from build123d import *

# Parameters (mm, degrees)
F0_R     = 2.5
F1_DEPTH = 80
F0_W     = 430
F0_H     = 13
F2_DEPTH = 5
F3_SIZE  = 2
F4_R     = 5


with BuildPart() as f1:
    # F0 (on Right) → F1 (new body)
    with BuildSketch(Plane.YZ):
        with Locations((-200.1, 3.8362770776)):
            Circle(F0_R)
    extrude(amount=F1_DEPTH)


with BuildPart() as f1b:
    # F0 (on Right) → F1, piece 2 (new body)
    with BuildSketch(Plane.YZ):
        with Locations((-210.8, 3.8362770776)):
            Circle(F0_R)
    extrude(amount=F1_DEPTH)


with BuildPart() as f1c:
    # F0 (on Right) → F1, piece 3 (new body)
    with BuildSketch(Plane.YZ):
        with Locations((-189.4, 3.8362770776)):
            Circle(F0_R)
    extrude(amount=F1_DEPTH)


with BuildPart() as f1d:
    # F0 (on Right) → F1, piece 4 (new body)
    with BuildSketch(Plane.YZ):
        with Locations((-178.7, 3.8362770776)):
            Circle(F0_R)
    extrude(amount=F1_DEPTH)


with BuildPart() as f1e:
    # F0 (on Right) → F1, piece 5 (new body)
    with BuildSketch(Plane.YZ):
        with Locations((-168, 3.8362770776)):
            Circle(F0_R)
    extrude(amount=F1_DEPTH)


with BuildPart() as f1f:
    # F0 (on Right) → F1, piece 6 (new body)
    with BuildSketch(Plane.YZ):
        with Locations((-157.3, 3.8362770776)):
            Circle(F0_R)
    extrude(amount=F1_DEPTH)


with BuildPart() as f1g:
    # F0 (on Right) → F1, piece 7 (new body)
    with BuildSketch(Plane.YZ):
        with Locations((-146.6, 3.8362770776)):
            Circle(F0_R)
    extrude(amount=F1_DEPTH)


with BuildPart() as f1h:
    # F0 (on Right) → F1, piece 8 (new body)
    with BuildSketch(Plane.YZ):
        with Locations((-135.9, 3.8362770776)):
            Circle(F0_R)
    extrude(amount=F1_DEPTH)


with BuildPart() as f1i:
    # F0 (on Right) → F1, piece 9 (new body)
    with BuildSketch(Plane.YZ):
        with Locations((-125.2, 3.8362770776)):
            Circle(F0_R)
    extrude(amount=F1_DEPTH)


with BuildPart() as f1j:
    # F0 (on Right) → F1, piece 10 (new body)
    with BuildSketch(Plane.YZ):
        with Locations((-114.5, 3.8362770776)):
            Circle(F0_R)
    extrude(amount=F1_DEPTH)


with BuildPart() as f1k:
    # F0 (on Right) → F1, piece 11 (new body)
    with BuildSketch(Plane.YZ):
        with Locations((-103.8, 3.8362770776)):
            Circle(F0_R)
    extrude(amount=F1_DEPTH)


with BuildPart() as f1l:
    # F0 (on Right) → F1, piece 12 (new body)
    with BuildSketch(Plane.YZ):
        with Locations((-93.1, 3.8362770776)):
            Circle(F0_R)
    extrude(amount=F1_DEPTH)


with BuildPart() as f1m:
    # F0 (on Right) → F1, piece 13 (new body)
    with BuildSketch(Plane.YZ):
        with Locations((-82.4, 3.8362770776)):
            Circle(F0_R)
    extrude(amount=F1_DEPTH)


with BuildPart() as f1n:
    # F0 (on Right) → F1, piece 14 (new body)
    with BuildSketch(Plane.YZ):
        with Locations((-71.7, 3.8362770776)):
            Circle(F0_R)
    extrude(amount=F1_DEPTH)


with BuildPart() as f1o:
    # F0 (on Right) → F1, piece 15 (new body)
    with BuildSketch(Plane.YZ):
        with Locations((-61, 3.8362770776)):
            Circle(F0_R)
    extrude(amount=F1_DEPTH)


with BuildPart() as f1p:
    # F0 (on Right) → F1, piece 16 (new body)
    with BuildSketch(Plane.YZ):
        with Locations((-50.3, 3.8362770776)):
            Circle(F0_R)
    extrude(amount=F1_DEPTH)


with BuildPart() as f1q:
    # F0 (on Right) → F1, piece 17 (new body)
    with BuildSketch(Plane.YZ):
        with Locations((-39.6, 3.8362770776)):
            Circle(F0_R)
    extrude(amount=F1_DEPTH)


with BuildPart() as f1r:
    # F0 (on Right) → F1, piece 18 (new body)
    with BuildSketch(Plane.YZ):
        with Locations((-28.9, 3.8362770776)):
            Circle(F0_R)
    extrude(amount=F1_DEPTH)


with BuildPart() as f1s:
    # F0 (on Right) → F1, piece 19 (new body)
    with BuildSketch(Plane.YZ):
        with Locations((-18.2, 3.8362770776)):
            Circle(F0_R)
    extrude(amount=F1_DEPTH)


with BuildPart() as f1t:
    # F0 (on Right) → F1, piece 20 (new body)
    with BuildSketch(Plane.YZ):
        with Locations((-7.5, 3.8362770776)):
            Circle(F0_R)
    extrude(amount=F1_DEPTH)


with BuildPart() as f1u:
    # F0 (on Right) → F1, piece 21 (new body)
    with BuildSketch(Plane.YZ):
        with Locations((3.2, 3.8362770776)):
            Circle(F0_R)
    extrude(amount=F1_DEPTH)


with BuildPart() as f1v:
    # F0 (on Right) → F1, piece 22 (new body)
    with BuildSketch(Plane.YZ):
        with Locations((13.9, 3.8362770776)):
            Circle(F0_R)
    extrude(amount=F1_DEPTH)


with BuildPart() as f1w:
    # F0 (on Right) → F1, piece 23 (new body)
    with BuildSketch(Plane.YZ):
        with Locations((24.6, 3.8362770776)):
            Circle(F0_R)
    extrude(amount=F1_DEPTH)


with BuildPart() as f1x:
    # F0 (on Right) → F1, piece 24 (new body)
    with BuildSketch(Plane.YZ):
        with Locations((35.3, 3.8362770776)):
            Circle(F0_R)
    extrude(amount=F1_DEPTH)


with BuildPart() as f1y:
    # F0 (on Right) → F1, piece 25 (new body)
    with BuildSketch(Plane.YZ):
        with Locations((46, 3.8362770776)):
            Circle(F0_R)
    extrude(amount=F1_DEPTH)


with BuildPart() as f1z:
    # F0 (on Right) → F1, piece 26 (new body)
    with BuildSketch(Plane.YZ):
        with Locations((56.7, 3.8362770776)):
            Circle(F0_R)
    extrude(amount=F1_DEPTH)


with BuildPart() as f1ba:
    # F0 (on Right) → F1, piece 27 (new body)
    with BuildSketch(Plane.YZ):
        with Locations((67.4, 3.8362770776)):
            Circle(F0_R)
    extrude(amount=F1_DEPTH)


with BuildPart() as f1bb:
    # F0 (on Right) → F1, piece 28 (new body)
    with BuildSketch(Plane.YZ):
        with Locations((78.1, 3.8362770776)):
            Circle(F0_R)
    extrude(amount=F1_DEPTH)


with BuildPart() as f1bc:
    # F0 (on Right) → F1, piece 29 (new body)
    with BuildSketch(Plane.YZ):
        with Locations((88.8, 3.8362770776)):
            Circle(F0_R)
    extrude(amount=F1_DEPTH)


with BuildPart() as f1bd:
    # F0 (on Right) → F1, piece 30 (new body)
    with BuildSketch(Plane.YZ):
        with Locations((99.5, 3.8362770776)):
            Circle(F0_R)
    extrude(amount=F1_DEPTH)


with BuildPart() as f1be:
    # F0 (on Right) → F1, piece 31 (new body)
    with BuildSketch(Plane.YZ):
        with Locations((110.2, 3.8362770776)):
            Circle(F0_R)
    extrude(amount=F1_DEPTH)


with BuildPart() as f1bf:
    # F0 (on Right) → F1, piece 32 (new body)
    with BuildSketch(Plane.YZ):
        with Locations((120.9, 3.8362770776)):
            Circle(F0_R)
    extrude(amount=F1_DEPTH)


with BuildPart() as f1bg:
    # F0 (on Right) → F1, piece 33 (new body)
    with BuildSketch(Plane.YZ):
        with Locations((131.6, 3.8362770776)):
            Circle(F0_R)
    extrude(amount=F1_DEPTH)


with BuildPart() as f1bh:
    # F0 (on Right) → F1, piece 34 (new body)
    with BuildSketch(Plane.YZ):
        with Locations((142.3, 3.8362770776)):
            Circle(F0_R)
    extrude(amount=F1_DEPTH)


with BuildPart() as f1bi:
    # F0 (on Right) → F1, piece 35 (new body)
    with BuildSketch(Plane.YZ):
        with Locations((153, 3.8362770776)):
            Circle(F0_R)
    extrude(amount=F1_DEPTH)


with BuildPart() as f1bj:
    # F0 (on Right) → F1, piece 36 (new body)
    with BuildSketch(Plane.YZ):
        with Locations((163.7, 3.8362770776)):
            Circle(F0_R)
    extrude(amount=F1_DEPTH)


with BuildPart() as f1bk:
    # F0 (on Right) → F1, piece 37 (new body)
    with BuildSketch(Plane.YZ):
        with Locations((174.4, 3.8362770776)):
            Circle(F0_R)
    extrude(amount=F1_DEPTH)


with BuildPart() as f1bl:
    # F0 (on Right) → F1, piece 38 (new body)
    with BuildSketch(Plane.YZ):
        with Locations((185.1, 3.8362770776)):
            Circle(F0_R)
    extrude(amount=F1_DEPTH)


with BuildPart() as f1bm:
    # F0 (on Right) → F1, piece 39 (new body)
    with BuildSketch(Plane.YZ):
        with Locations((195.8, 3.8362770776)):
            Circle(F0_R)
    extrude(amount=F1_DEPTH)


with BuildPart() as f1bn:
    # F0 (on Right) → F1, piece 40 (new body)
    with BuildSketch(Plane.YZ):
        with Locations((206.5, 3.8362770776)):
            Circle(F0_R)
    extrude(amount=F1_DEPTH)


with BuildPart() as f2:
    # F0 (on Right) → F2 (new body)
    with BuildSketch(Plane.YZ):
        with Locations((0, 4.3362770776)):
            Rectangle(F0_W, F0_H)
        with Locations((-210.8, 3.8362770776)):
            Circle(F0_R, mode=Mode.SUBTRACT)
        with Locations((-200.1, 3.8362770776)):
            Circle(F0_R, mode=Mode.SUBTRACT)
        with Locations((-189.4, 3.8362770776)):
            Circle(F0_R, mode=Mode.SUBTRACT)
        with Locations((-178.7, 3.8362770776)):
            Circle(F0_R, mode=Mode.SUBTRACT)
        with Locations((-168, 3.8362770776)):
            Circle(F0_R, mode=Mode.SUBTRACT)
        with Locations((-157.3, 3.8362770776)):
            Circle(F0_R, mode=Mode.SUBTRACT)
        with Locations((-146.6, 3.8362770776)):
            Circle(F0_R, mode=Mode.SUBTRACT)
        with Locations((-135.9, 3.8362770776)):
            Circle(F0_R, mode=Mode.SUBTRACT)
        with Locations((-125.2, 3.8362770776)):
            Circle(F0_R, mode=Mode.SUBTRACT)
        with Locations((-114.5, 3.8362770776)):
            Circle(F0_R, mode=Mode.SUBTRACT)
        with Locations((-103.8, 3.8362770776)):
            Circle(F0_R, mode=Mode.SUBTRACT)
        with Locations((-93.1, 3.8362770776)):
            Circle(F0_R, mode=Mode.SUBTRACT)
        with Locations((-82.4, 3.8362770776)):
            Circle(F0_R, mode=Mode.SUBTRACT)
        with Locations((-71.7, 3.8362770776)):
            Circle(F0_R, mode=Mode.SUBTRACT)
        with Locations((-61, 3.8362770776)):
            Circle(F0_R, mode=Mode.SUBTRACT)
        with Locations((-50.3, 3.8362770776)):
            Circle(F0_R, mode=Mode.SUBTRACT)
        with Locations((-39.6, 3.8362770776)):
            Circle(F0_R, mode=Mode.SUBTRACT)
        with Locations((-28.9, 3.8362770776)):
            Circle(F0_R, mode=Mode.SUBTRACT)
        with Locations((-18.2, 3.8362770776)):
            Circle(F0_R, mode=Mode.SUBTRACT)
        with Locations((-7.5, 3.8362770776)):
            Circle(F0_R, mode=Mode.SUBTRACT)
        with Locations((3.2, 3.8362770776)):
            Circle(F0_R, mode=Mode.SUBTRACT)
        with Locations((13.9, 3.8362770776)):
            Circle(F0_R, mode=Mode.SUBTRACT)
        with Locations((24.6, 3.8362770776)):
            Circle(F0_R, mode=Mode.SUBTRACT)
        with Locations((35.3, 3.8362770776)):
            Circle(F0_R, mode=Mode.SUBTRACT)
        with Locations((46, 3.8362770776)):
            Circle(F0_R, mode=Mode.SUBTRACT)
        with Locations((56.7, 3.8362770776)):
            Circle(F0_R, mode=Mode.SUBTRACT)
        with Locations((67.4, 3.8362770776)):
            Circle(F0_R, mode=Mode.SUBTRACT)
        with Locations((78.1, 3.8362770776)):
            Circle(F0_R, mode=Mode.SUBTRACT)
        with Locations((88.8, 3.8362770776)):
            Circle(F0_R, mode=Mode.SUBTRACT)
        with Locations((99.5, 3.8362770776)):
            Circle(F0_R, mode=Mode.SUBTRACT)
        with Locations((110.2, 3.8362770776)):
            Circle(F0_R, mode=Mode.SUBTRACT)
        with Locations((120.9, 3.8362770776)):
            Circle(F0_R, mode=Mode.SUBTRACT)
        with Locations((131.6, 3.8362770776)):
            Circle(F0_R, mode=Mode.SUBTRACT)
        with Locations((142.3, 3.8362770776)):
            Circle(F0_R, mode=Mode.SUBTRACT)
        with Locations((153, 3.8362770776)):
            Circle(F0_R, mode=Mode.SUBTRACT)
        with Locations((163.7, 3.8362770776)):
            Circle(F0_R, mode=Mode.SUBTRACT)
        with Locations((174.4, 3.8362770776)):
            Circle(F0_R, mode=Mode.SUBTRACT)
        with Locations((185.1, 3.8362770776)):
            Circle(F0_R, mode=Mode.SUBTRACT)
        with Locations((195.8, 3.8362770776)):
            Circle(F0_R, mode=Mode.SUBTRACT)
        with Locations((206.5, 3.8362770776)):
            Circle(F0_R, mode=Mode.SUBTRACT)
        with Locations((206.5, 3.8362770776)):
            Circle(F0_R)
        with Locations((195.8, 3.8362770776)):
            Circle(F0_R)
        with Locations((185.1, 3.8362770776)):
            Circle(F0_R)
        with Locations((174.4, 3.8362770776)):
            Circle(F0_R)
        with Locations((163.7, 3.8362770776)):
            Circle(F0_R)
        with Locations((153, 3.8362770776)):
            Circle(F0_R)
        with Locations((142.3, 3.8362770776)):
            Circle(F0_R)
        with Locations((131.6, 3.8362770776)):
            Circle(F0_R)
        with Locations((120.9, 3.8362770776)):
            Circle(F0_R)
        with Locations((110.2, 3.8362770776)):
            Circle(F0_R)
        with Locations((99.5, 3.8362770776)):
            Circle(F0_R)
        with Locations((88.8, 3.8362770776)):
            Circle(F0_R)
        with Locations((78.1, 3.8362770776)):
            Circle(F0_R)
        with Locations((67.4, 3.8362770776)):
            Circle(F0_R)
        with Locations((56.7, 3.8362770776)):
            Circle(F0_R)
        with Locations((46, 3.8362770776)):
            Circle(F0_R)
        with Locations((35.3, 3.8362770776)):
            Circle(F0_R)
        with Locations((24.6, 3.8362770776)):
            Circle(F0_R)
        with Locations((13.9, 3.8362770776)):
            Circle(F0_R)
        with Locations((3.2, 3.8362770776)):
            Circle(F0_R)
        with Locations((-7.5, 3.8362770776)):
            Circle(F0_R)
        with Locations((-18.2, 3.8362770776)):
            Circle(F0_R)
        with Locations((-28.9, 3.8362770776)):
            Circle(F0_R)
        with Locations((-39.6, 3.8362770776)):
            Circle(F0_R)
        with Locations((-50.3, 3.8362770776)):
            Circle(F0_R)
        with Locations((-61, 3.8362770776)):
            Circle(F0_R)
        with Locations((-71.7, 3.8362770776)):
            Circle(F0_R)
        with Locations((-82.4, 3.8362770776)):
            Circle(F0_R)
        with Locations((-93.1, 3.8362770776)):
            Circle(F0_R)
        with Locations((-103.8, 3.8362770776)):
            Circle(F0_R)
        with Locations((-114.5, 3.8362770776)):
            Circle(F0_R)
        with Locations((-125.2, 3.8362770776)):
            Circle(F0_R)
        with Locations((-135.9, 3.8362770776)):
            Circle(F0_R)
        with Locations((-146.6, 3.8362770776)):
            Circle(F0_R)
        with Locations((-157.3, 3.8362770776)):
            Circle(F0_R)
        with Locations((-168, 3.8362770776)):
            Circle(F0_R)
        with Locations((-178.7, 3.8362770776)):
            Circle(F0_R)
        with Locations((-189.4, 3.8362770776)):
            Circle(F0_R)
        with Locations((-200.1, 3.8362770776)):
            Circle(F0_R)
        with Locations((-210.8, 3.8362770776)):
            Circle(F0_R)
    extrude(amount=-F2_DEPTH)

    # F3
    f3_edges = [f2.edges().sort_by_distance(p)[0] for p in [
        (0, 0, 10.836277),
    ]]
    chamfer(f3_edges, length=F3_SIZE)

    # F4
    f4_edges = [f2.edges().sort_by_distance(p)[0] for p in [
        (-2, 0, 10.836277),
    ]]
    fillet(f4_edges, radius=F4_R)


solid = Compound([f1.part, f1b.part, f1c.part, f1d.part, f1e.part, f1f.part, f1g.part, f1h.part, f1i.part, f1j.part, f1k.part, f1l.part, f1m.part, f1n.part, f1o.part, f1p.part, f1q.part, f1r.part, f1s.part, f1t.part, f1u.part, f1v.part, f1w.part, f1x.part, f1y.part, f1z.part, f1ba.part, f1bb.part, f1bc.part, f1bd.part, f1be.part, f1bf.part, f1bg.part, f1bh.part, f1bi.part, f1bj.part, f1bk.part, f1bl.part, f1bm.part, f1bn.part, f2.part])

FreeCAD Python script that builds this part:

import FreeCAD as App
import Part
import Sketcher

V = App.Vector


def edges_at(feature, points):
    """Names of the edges that pass closest to the given points."""
    edges = feature.Shape.Edges
    near = lambda p: min(range(len(edges)), key=lambda i: edges[i].distToShape(Part.Vertex(*p))[0])
    return sorted({f"Edge{near(p) + 1}" for p in points})

doc = App.newDocument("Part")
body = doc.addObject("PartDesign::Body", "Body")

sketch1 = doc.addObject("Sketcher::SketchObject", "Sketch")
body.addObject(sketch1)
sketch1.AttachmentSupport = (doc.YZ_Plane, [""])
sketch1.MapMode = "FlatFace"
sketch1.addGeometry(Part.Circle(V(-200.1, 3.836277, 0), V(0, 0, 1), 2.5), False)
sketch1.addConstraint(Sketcher.Constraint("Diameter", 0, 5.0))
sketch1.addConstraint(Sketcher.Constraint("DistanceX", 0, 3, -1, 1, 200.1))
sketch1.addConstraint(Sketcher.Constraint("DistanceY", -1, 1, 0, 3, 3.836277))
pad1 = doc.addObject("PartDesign::Pad", "Pad")
body.addObject(pad1)
pad1.Profile = sketch1
pad1.Length = 80
body2 = doc.addObject("PartDesign::Body", "Body001")

sketch2 = doc.addObject("Sketcher::SketchObject", "Sketch001")
body2.addObject(sketch2)
sketch2.AttachmentSupport = (doc.getObject("YZ_Plane001"), [""])
sketch2.MapMode = "FlatFace"
sketch2.addGeometry(Part.Circle(V(-210.8, 3.836277, 0), V(0, 0, 1), 2.5), False)
sketch2.addConstraint(Sketcher.Constraint("Diameter", 0, 5.0))
sketch2.addConstraint(Sketcher.Constraint("DistanceX", 0, 3, -1, 1, 210.8))
sketch2.addConstraint(Sketcher.Constraint("DistanceY", -1, 1, 0, 3, 3.836277))
pad2 = doc.addObject("PartDesign::Pad", "Pad001")
body2.addObject(pad2)
pad2.Profile = sketch2
pad2.Length = 80
body3 = doc.addObject("PartDesign::Body", "Body002")

sketch3 = doc.addObject("Sketcher::SketchObject", "Sketch002")
body3.addObject(sketch3)
sketch3.AttachmentSupport = (doc.getObject("YZ_Plane002"), [""])
sketch3.MapMode = "FlatFace"
sketch3.addGeometry(Part.Circle(V(-189.4, 3.836277, 0), V(0, 0, 1), 2.5), False)
sketch3.addConstraint(Sketcher.Constraint("Diameter", 0, 5.0))
sketch3.addConstraint(Sketcher.Constraint("DistanceX", 0, 3, -1, 1, 189.4))
sketch3.addConstraint(Sketcher.Constraint("DistanceY", -1, 1, 0, 3, 3.836277))
pad3 = doc.addObject("PartDesign::Pad", "Pad002")
body3.addObject(pad3)
pad3.Profile = sketch3
pad3.Length = 80
body4 = doc.addObject("PartDesign::Body", "Body003")

sketch4 = doc.addObject("Sketcher::SketchObject", "Sketch003")
body4.addObject(sketch4)
sketch4.AttachmentSupport = (doc.getObject("YZ_Plane003"), [""])
sketch4.MapMode = "FlatFace"
sketch4.addGeometry(Part.Circle(V(-178.7, 3.836277, 0), V(0, 0, 1), 2.5), False)
sketch4.addConstraint(Sketcher.Constraint("Diameter", 0, 5.0))
sketch4.addConstraint(Sketcher.Constraint("DistanceX", 0, 3, -1, 1, 178.7))
sketch4.addConstraint(Sketcher.Constraint("DistanceY", -1, 1, 0, 3, 3.836277))
pad4 = doc.addObject("PartDesign::Pad", "Pad003")
body4.addObject(pad4)
pad4.Profile = sketch4
pad4.Length = 80
body5 = doc.addObject("PartDesign::Body", "Body004")

sketch5 = doc.addObject("Sketcher::SketchObject", "Sketch004")
body5.addObject(sketch5)
sketch5.AttachmentSupport = (doc.getObject("YZ_Plane004"), [""])
sketch5.MapMode = "FlatFace"
sketch5.addGeometry(Part.Circle(V(-168, 3.836277, 0), V(0, 0, 1), 2.5), False)
sketch5.addConstraint(Sketcher.Constraint("Diameter", 0, 5.0))
sketch5.addConstraint(Sketcher.Constraint("DistanceX", 0, 3, -1, 1, 168.0))
sketch5.addConstraint(Sketcher.Constraint("DistanceY", -1, 1, 0, 3, 3.836277))
pad5 = doc.addObject("PartDesign::Pad", "Pad004")
body5.addObject(pad5)
pad5.Profile = sketch5
pad5.Length = 80
body6 = doc.addObject("PartDesign::Body", "Body005")

sketch6 = doc.addObject("Sketcher::SketchObject", "Sketch005")
body6.addObject(sketch6)
sketch6.AttachmentSupport = (doc.getObject("YZ_Plane005"), [""])
sketch6.MapMode = "FlatFace"
sketch6.addGeometry(Part.Circle(V(-157.3, 3.836277, 0), V(0, 0, 1), 2.5), False)
sketch6.addConstraint(Sketcher.Constraint("Diameter", 0, 5.0))
sketch6.addConstraint(Sketcher.Constraint("DistanceX", 0, 3, -1, 1, 157.3))
sketch6.addConstraint(Sketcher.Constraint("DistanceY", -1, 1, 0, 3, 3.836277))
pad6 = doc.addObject("PartDesign::Pad", "Pad005")
body6.addObject(pad6)
pad6.Profile = sketch6
pad6.Length = 80
body7 = doc.addObject("PartDesign::Body", "Body006")

sketch7 = doc.addObject("Sketcher::SketchObject", "Sketch006")
body7.addObject(sketch7)
sketch7.AttachmentSupport = (doc.getObject("YZ_Plane006"), [""])
sketch7.MapMode = "FlatFace"
sketch7.addGeometry(Part.Circle(V(-146.6, 3.836277, 0), V(0, 0, 1), 2.5), False)
sketch7.addConstraint(Sketcher.Constraint("Diameter", 0, 5.0))
sketch7.addConstraint(Sketcher.Constraint("DistanceX", 0, 3, -1, 1, 146.6))
sketch7.addConstraint(Sketcher.Constraint("DistanceY", -1, 1, 0, 3, 3.836277))
pad7 = doc.addObject("PartDesign::Pad", "Pad006")
body7.addObject(pad7)
pad7.Profile = sketch7
pad7.Length = 80
body8 = doc.addObject("PartDesign::Body", "Body007")

sketch8 = doc.addObject("Sketcher::SketchObject", "Sketch007")
body8.addObject(sketch8)
sketch8.AttachmentSupport = (doc.getObject("YZ_Plane007"), [""])
sketch8.MapMode = "FlatFace"
sketch8.addGeometry(Part.Circle(V(-135.9, 3.836277, 0), V(0, 0, 1), 2.5), False)
sketch8.addConstraint(Sketcher.Constraint("Diameter", 0, 5.0))
sketch8.addConstraint(Sketcher.Constraint("DistanceX", 0, 3, -1, 1, 135.9))
sketch8.addConstraint(Sketcher.Constraint("DistanceY", -1, 1, 0, 3, 3.836277))
pad8 = doc.addObject("PartDesign::Pad", "Pad007")
body8.addObject(pad8)
pad8.Profile = sketch8
pad8.Length = 80
body9 = doc.addObject("PartDesign::Body", "Body008")

sketch9 = doc.addObject("Sketcher::SketchObject", "Sketch008")
body9.addObject(sketch9)
sketch9.AttachmentSupport = (doc.getObject("YZ_Plane008"), [""])
sketch9.MapMode = "FlatFace"
sketch9.addGeometry(Part.Circle(V(-125.2, 3.836277, 0), V(0, 0, 1), 2.5), False)
sketch9.addConstraint(Sketcher.Constraint("Diameter", 0, 5.0))
sketch9.addConstraint(Sketcher.Constraint("DistanceX", 0, 3, -1, 1, 125.2))
sketch9.addConstraint(Sketcher.Constraint("DistanceY", -1, 1, 0, 3, 3.836277))
pad9 = doc.addObject("PartDesign::Pad", "Pad008")
body9.addObject(pad9)
pad9.Profile = sketch9
pad9.Length = 80
body10 = doc.addObject("PartDesign::Body", "Body009")

sketch10 = doc.addObject("Sketcher::SketchObject", "Sketch009")
body10.addObject(sketch10)
sketch10.AttachmentSupport = (doc.getObject("YZ_Plane009"), [""])
sketch10.MapMode = "FlatFace"
sketch10.addGeometry(Part.Circle(V(-114.5, 3.836277, 0), V(0, 0, 1), 2.5), False)
sketch10.addConstraint(Sketcher.Constraint("Diameter", 0, 5.0))
sketch10.addConstraint(Sketcher.Constraint("DistanceX", 0, 3, -1, 1, 114.5))
sketch10.addConstraint(Sketcher.Constraint("DistanceY", -1, 1, 0, 3, 3.836277))
pad10 = doc.addObject("PartDesign::Pad", "Pad009")
body10.addObject(pad10)
pad10.Profile = sketch10
pad10.Length = 80
body11 = doc.addObject("PartDesign::Body", "Body010")

sketch11 = doc.addObject("Sketcher::SketchObject", "Sketch010")
body11.addObject(sketch11)
sketch11.AttachmentSupport = (doc.getObject("YZ_Plane010"), [""])
sketch11.MapMode = "FlatFace"
sketch11.addGeometry(Part.Circle(V(-103.8, 3.836277, 0), V(0, 0, 1), 2.5), False)
sketch11.addConstraint(Sketcher.Constraint("Diameter", 0, 5.0))
sketch11.addConstraint(Sketcher.Constraint("DistanceX", 0, 3, -1, 1, 103.8))
sketch11.addConstraint(Sketcher.Constraint("DistanceY", -1, 1, 0, 3, 3.836277))
pad11 = doc.addObject("PartDesign::Pad", "Pad010")
body11.addObject(pad11)
pad11.Profile = sketch11
pad11.Length = 80
body12 = doc.addObject("PartDesign::Body", "Body011")

sketch12 = doc.addObject("Sketcher::SketchObject", "Sketch011")
body12.addObject(sketch12)
sketch12.AttachmentSupport = (doc.getObject("YZ_Plane011"), [""])
sketch12.MapMode = "FlatFace"
sketch12.addGeometry(Part.Circle(V(-93.1, 3.836277, 0), V(0, 0, 1), 2.5), False)
sketch12.addConstraint(Sketcher.Constraint("Diameter", 0, 5.0))
sketch12.addConstraint(Sketcher.Constraint("DistanceX", 0, 3, -1, 1, 93.1))
sketch12.addConstraint(Sketcher.Constraint("DistanceY", -1, 1, 0, 3, 3.836277))
pad12 = doc.addObject("PartDesign::Pad", "Pad011")
body12.addObject(pad12)
pad12.Profile = sketch12
pad12.Length = 80
body13 = doc.addObject("PartDesign::Body", "Body012")

sketch13 = doc.addObject("Sketcher::SketchObject", "Sketch012")
body13.addObject(sketch13)
sketch13.AttachmentSupport = (doc.getObject("YZ_Plane012"), [""])
sketch13.MapMode = "FlatFace"
sketch13.addGeometry(Part.Circle(V(-82.4, 3.836277, 0), V(0, 0, 1), 2.5), False)
sketch13.addConstraint(Sketcher.Constraint("Diameter", 0, 5.0))
sketch13.addConstraint(Sketcher.Constraint("DistanceX", 0, 3, -1, 1, 82.4))
sketch13.addConstraint(Sketcher.Constraint("DistanceY", -1, 1, 0, 3, 3.836277))
pad13 = doc.addObject("PartDesign::Pad", "Pad012")
body13.addObject(pad13)
pad13.Profile = sketch13
pad13.Length = 80
body14 = doc.addObject("PartDesign::Body", "Body013")

sketch14 = doc.addObject("Sketcher::SketchObject", "Sketch013")
body14.addObject(sketch14)
sketch14.AttachmentSupport = (doc.getObject("YZ_Plane013"), [""])
sketch14.MapMode = "FlatFace"
sketch14.addGeometry(Part.Circle(V(-71.7, 3.836277, 0), V(0, 0, 1), 2.5), False)
sketch14.addConstraint(Sketcher.Constraint("Diameter", 0, 5.0))
sketch14.addConstraint(Sketcher.Constraint("DistanceX", 0, 3, -1, 1, 71.7))
sketch14.addConstraint(Sketcher.Constraint("DistanceY", -1, 1, 0, 3, 3.836277))
pad14 = doc.addObject("PartDesign::Pad", "Pad013")
body14.addObject(pad14)
pad14.Profile = sketch14
pad14.Length = 80
body15 = doc.addObject("PartDesign::Body", "Body014")

sketch15 = doc.addObject("Sketcher::SketchObject", "Sketch014")
body15.addObject(sketch15)
sketch15.AttachmentSupport = (doc.getObject("YZ_Plane014"), [""])
sketch15.MapMode = "FlatFace"
sketch15.addGeometry(Part.Circle(V(-61, 3.836277, 0), V(0, 0, 1), 2.5), False)
sketch15.addConstraint(Sketcher.Constraint("Diameter", 0, 5.0))
sketch15.addConstraint(Sketcher.Constraint("DistanceX", 0, 3, -1, 1, 61.0))
sketch15.addConstraint(Sketcher.Constraint("DistanceY", -1, 1, 0, 3, 3.836277))
pad15 = doc.addObject("PartDesign::Pad", "Pad014")
body15.addObject(pad15)
pad15.Profile = sketch15
pad15.Length = 80
body16 = doc.addObject("PartDesign::Body", "Body015")

sketch16 = doc.addObject("Sketcher::SketchObject", "Sketch015")
body16.addObject(sketch16)
sketch16.AttachmentSupport = (doc.getObject("YZ_Plane015"), [""])
sketch16.MapMode = "FlatFace"
sketch16.addGeometry(Part.Circle(V(-50.3, 3.836277, 0), V(0, 0, 1), 2.5), False)
sketch16.addConstraint(Sketcher.Constraint("Diameter", 0, 5.0))
sketch16.addConstraint(Sketcher.Constraint("DistanceX", 0, 3, -1, 1, 50.3))
sketch16.addConstraint(Sketcher.Constraint("DistanceY", -1, 1, 0, 3, 3.836277))
pad16 = doc.addObject("PartDesign::Pad", "Pad015")
body16.addObject(pad16)
pad16.Profile = sketch16
pad16.Length = 80
body17 = doc.addObject("PartDesign::Body", "Body016")

sketch17 = doc.addObject("Sketcher::SketchObject", "Sketch016")
body17.addObject(sketch17)
sketch17.AttachmentSupport = (doc.getObject("YZ_Plane016"), [""])
sketch17.MapMode = "FlatFace"
sketch17.addGeometry(Part.Circle(V(-39.6, 3.836277, 0), V(0, 0, 1), 2.5), False)
sketch17.addConstraint(Sketcher.Constraint("Diameter", 0, 5.0))
sketch17.addConstraint(Sketcher.Constraint("DistanceX", 0, 3, -1, 1, 39.6))
sketch17.addConstraint(Sketcher.Constraint("DistanceY", -1, 1, 0, 3, 3.836277))
pad17 = doc.addObject("PartDesign::Pad", "Pad016")
body17.addObject(pad17)
pad17.Profile = sketch17
pad17.Length = 80
body18 = doc.addObject("PartDesign::Body", "Body017")

sketch18 = doc.addObject("Sketcher::SketchObject", "Sketch017")
body18.addObject(sketch18)
sketch18.AttachmentSupport = (doc.getObject("YZ_Plane017"), [""])
sketch18.MapMode = "FlatFace"
sketch18.addGeometry(Part.Circle(V(-28.9, 3.836277, 0), V(0, 0, 1), 2.5), False)
sketch18.addConstraint(Sketcher.Constraint("Diameter", 0, 5.0))
sketch18.addConstraint(Sketcher.Constraint("DistanceX", 0, 3, -1, 1, 28.9))
sketch18.addConstraint(Sketcher.Constraint("DistanceY", -1, 1, 0, 3, 3.836277))
pad18 = doc.addObject("PartDesign::Pad", "Pad017")
body18.addObject(pad18)
pad18.Profile = sketch18
pad18.Length = 80
body19 = doc.addObject("PartDesign::Body", "Body018")

sketch19 = doc.addObject("Sketcher::SketchObject", "Sketch018")
body19.addObject(sketch19)
sketch19.AttachmentSupport = (doc.getObject("YZ_Plane018"), [""])
sketch19.MapMode = "FlatFace"
sketch19.addGeometry(Part.Circle(V(-18.2, 3.836277, 0), V(0, 0, 1), 2.5), False)
sketch19.addConstraint(Sketcher.Constraint("Diameter", 0, 5.0))
sketch19.addConstraint(Sketcher.Constraint("DistanceX", 0, 3, -1, 1, 18.2))
sketch19.addConstraint(Sketcher.Constraint("DistanceY", -1, 1, 0, 3, 3.836277))
pad19 = doc.addObject("PartDesign::Pad", "Pad018")
body19.addObject(pad19)
pad19.Profile = sketch19
pad19.Length = 80
body20 = doc.addObject("PartDesign::Body", "Body019")

sketch20 = doc.addObject("Sketcher::SketchObject", "Sketch019")
body20.addObject(sketch20)
sketch20.AttachmentSupport = (doc.getObject("YZ_Plane019"), [""])
sketch20.MapMode = "FlatFace"
sketch20.addGeometry(Part.Circle(V(-7.5, 3.836277, 0), V(0, 0, 1), 2.5), False)
sketch20.addConstraint(Sketcher.Constraint("Diameter", 0, 5.0))
sketch20.addConstraint(Sketcher.Constraint("DistanceX", 0, 3, -1, 1, 7.5))
sketch20.addConstraint(Sketcher.Constraint("DistanceY", -1, 1, 0, 3, 3.836277))
pad20 = doc.addObject("PartDesign::Pad", "Pad019")
body20.addObject(pad20)
pad20.Profile = sketch20
pad20.Length = 80
body21 = doc.addObject("PartDesign::Body", "Body020")

sketch21 = doc.addObject("Sketcher::SketchObject", "Sketch020")
body21.addObject(sketch21)
sketch21.AttachmentSupport = (doc.getObject("YZ_Plane020"), [""])
sketch21.MapMode = "FlatFace"
sketch21.addGeometry(Part.Circle(V(3.2, 3.836277, 0), V(0, 0, 1), 2.5), False)
sketch21.addConstraint(Sketcher.Constraint("Diameter", 0, 5.0))
sketch21.addConstraint(Sketcher.Constraint("DistanceX", -1, 1, 0, 3, 3.2))
sketch21.addConstraint(Sketcher.Constraint("DistanceY", -1, 1, 0, 3, 3.836277))
pad21 = doc.addObject("PartDesign::Pad", "Pad020")
body21.addObject(pad21)
pad21.Profile = sketch21
pad21.Length = 80
body22 = doc.addObject("PartDesign::Body", "Body021")

sketch22 = doc.addObject("Sketcher::SketchObject", "Sketch021")
body22.addObject(sketch22)
sketch22.AttachmentSupport = (doc.getObject("YZ_Plane021"), [""])
sketch22.MapMode = "FlatFace"
sketch22.addGeometry(Part.Circle(V(13.9, 3.836277, 0), V(0, 0, 1), 2.5), False)
sketch22.addConstraint(Sketcher.Constraint("Diameter", 0, 5.0))
sketch22.addConstraint(Sketcher.Constraint("DistanceX", -1, 1, 0, 3, 13.9))
sketch22.addConstraint(Sketcher.Constraint("DistanceY", -1, 1, 0, 3, 3.836277))
pad22 = doc.addObject("PartDesign::Pad", "Pad021")
body22.addObject(pad22)
pad22.Profile = sketch22
pad22.Length = 80
body23 = doc.addObject("PartDesign::Body", "Body022")

sketch23 = doc.addObject("Sketcher::SketchObject", "Sketch022")
body23.addObject(sketch23)
sketch23.AttachmentSupport = (doc.getObject("YZ_Plane022"), [""])
sketch23.MapMode = "FlatFace"
sketch23.addGeometry(Part.Circle(V(24.6, 3.836277, 0), V(0, 0, 1), 2.5), False)
sketch23.addConstraint(Sketcher.Constraint("Diameter", 0, 5.0))
sketch23.addConstraint(Sketcher.Constraint("DistanceX", -1, 1, 0, 3, 24.6))
sketch23.addConstraint(Sketcher.Constraint("DistanceY", -1, 1, 0, 3, 3.836277))
pad23 = doc.addObject("PartDesign::Pad", "Pad022")
body23.addObject(pad23)
pad23.Profile = sketch23
pad23.Length = 80
body24 = doc.addObject("PartDesign::Body", "Body023")

sketch24 = doc.addObject("Sketcher::SketchObject", "Sketch023")
body24.addObject(sketch24)
sketch24.AttachmentSupport = (doc.getObject("YZ_Plane023"), [""])
sketch24.MapMode = "FlatFace"
sketch24.addGeometry(Part.Circle(V(35.3, 3.836277, 0), V(0, 0, 1), 2.5), False)
sketch24.addConstraint(Sketcher.Constraint("Diameter", 0, 5.0))
sketch24.addConstraint(Sketcher.Constraint("DistanceX", -1, 1, 0, 3, 35.3))
sketch24.addConstraint(Sketcher.Constraint("DistanceY", -1, 1, 0, 3, 3.836277))
pad24 = doc.addObject("PartDesign::Pad", "Pad023")
body24.addObject(pad24)
pad24.Profile = sketch24
pad24.Length = 80
body25 = doc.addObject("PartDesign::Body", "Body024")

sketch25 = doc.addObject("Sketcher::SketchObject", "Sketch024")
body25.addObject(sketch25)
sketch25.AttachmentSupport = (doc.getObject("YZ_Plane024"), [""])
sketch25.MapMode = "FlatFace"
sketch25.addGeometry(Part.Circle(V(46, 3.836277, 0), V(0, 0, 1), 2.5), False)
sketch25.addConstraint(Sketcher.Constraint("Diameter", 0, 5.0))
sketch25.addConstraint(Sketcher.Constraint("DistanceX", -1, 1, 0, 3, 46.0))
sketch25.addConstraint(Sketcher.Constraint("DistanceY", -1, 1, 0, 3, 3.836277))
pad25 = doc.addObject("PartDesign::Pad", "Pad024")
body25.addObject(pad25)
pad25.Profile = sketch25
pad25.Length = 80
body26 = doc.addObject("PartDesign::Body", "Body025")

sketch26 = doc.addObject("Sketcher::SketchObject", "Sketch025")
body26.addObject(sketch26)
sketch26.AttachmentSupport = (doc.getObject("YZ_Plane025"), [""])
sketch26.MapMode = "FlatFace"
sketch26.addGeometry(Part.Circle(V(56.7, 3.836277, 0), V(0, 0, 1), 2.5), False)
sketch26.addConstraint(Sketcher.Constraint("Diameter", 0, 5.0))
sketch26.addConstraint(Sketcher.Constraint("DistanceX", -1, 1, 0, 3, 56.7))
sketch26.addConstraint(Sketcher.Constraint("DistanceY", -1, 1, 0, 3, 3.836277))
pad26 = doc.addObject("PartDesign::Pad", "Pad025")
body26.addObject(pad26)
pad26.Profile = sketch26
pad26.Length = 80
body27 = doc.addObject("PartDesign::Body", "Body026")

sketch27 = doc.addObject("Sketcher::SketchObject", "Sketch026")
body27.addObject(sketch27)
sketch27.AttachmentSupport = (doc.getObject("YZ_Plane026"), [""])
sketch27.MapMode = "FlatFace"
sketch27.addGeometry(Part.Circle(V(67.4, 3.836277, 0), V(0, 0, 1), 2.5), False)
sketch27.addConstraint(Sketcher.Constraint("Diameter", 0, 5.0))
sketch27.addConstraint(Sketcher.Constraint("DistanceX", -1, 1, 0, 3, 67.4))
sketch27.addConstraint(Sketcher.Constraint("DistanceY", -1, 1, 0, 3, 3.836277))
pad27 = doc.addObject("PartDesign::Pad", "Pad026")
body27.addObject(pad27)
pad27.Profile = sketch27
pad27.Length = 80
body28 = doc.addObject("PartDesign::Body", "Body027")

sketch28 = doc.addObject("Sketcher::SketchObject", "Sketch027")
body28.addObject(sketch28)
sketch28.AttachmentSupport = (doc.getObject("YZ_Plane027"), [""])
sketch28.MapMode = "FlatFace"
sketch28.addGeometry(Part.Circle(V(78.1, 3.836277, 0), V(0, 0, 1), 2.5), False)
sketch28.addConstraint(Sketcher.Constraint("Diameter", 0, 5.0))
sketch28.addConstraint(Sketcher.Constraint("DistanceX", -1, 1, 0, 3, 78.1))
sketch28.addConstraint(Sketcher.Constraint("DistanceY", -1, 1, 0, 3, 3.836277))
pad28 = doc.addObject("PartDesign::Pad", "Pad027")
body28.addObject(pad28)
pad28.Profile = sketch28
pad28.Length = 80
body29 = doc.addObject("PartDesign::Body", "Body028")

sketch29 = doc.addObject("Sketcher::SketchObject", "Sketch028")
body29.addObject(sketch29)
sketch29.AttachmentSupport = (doc.getObject("YZ_Plane028"), [""])
sketch29.MapMode = "FlatFace"
sketch29.addGeometry(Part.Circle(V(88.8, 3.836277, 0), V(0, 0, 1), 2.5), False)
sketch29.addConstraint(Sketcher.Constraint("Diameter", 0, 5.0))
sketch29.addConstraint(Sketcher.Constraint("DistanceX", -1, 1, 0, 3, 88.8))
sketch29.addConstraint(Sketcher.Constraint("DistanceY", -1, 1, 0, 3, 3.836277))
pad29 = doc.addObject("PartDesign::Pad", "Pad028")
body29.addObject(pad29)
pad29.Profile = sketch29
pad29.Length = 80
body30 = doc.addObject("PartDesign::Body", "Body029")

sketch30 = doc.addObject("Sketcher::SketchObject", "Sketch029")
body30.addObject(sketch30)
sketch30.AttachmentSupport = (doc.getObject("YZ_Plane029"), [""])
sketch30.MapMode = "FlatFace"
sketch30.addGeometry(Part.Circle(V(99.5, 3.836277, 0), V(0, 0, 1), 2.5), False)
sketch30.addConstraint(Sketcher.Constraint("Diameter", 0, 5.0))
sketch30.addConstraint(Sketcher.Constraint("DistanceX", -1, 1, 0, 3, 99.5))
sketch30.addConstraint(Sketcher.Constraint("DistanceY", -1, 1, 0, 3, 3.836277))
pad30 = doc.addObject("PartDesign::Pad", "Pad029")
body30.addObject(pad30)
pad30.Profile = sketch30
pad30.Length = 80
body31 = doc.addObject("PartDesign::Body", "Body030")

sketch31 = doc.addObject("Sketcher::SketchObject", "Sketch030")
body31.addObject(sketch31)
sketch31.AttachmentSupport = (doc.getObject("YZ_Plane030"), [""])
sketch31.MapMode = "FlatFace"
sketch31.addGeometry(Part.Circle(V(110.2, 3.836277, 0), V(0, 0, 1), 2.5), False)
sketch31.addConstraint(Sketcher.Constraint("Diameter", 0, 5.0))
sketch31.addConstraint(Sketcher.Constraint("DistanceX", -1, 1, 0, 3, 110.2))
sketch31.addConstraint(Sketcher.Constraint("DistanceY", -1, 1, 0, 3, 3.836277))
pad31 = doc.addObject("PartDesign::Pad", "Pad030")
body31.addObject(pad31)
pad31.Profile = sketch31
pad31.Length = 80
body32 = doc.addObject("PartDesign::Body", "Body031")

sketch32 = doc.addObject("Sketcher::SketchObject", "Sketch031")
body32.addObject(sketch32)
sketch32.AttachmentSupport = (doc.getObject("YZ_Plane031"), [""])
sketch32.MapMode = "FlatFace"
sketch32.addGeometry(Part.Circle(V(120.9, 3.836277, 0), V(0, 0, 1), 2.5), False)
sketch32.addConstraint(Sketcher.Constraint("Diameter", 0, 5.0))
sketch32.addConstraint(Sketcher.Constraint("DistanceX", -1, 1, 0, 3, 120.9))
sketch32.addConstraint(Sketcher.Constraint("DistanceY", -1, 1, 0, 3, 3.836277))
pad32 = doc.addObject("PartDesign::Pad", "Pad031")
body32.addObject(pad32)
pad32.Profile = sketch32
pad32.Length = 80
body33 = doc.addObject("PartDesign::Body", "Body032")

sketch33 = doc.addObject("Sketcher::SketchObject", "Sketch032")
body33.addObject(sketch33)
sketch33.AttachmentSupport = (doc.getObject("YZ_Plane032"), [""])
sketch33.MapMode = "FlatFace"
sketch33.addGeometry(Part.Circle(V(131.6, 3.836277, 0), V(0, 0, 1), 2.5), False)
sketch33.addConstraint(Sketcher.Constraint("Diameter", 0, 5.0))
sketch33.addConstraint(Sketcher.Constraint("DistanceX", -1, 1, 0, 3, 131.6))
sketch33.addConstraint(Sketcher.Constraint("DistanceY", -1, 1, 0, 3, 3.836277))
pad33 = doc.addObject("PartDesign::Pad", "Pad032")
body33.addObject(pad33)
pad33.Profile = sketch33
pad33.Length = 80
body34 = doc.addObject("PartDesign::Body", "Body033")

sketch34 = doc.addObject("Sketcher::SketchObject", "Sketch033")
body34.addObject(sketch34)
sketch34.AttachmentSupport = (doc.getObject("YZ_Plane033"), [""])
sketch34.MapMode = "FlatFace"
sketch34.addGeometry(Part.Circle(V(142.3, 3.836277, 0), V(0, 0, 1), 2.5), False)
sketch34.addConstraint(Sketcher.Constraint("Diameter", 0, 5.0))
sketch34.addConstraint(Sketcher.Constraint("DistanceX", -1, 1, 0, 3, 142.3))
sketch34.addConstraint(Sketcher.Constraint("DistanceY", -1, 1, 0, 3, 3.836277))
pad34 = doc.addObject("PartDesign::Pad", "Pad033")
body34.addObject(pad34)
pad34.Profile = sketch34
pad34.Length = 80
body35 = doc.addObject("PartDesign::Body", "Body034")

sketch35 = doc.addObject("Sketcher::SketchObject", "Sketch034")
body35.addObject(sketch35)
sketch35.AttachmentSupport = (doc.getObject("YZ_Plane034"), [""])
sketch35.MapMode = "FlatFace"
sketch35.addGeometry(Part.Circle(V(153, 3.836277, 0), V(0, 0, 1), 2.5), False)
sketch35.addConstraint(Sketcher.Constraint("Diameter", 0, 5.0))
sketch35.addConstraint(Sketcher.Constraint("DistanceX", -1, 1, 0, 3, 153.0))
sketch35.addConstraint(Sketcher.Constraint("DistanceY", -1, 1, 0, 3, 3.836277))
pad35 = doc.addObject("PartDesign::Pad", "Pad034")
body35.addObject(pad35)
pad35.Profile = sketch35
pad35.Length = 80
body36 = doc.addObject("PartDesign::Body", "Body035")

sketch36 = doc.addObject("Sketcher::SketchObject", "Sketch035")
body36.addObject(sketch36)
sketch36.AttachmentSupport = (doc.getObject("YZ_Plane035"), [""])
sketch36.MapMode = "FlatFace"
sketch36.addGeometry(Part.Circle(V(163.7, 3.836277, 0), V(0, 0, 1), 2.5), False)
sketch36.addConstraint(Sketcher.Constraint("Diameter", 0, 5.0))
sketch36.addConstraint(Sketcher.Constraint("DistanceX", -1, 1, 0, 3, 163.7))
sketch36.addConstraint(Sketcher.Constraint("DistanceY", -1, 1, 0, 3, 3.836277))
pad36 = doc.addObject("PartDesign::Pad", "Pad035")
body36.addObject(pad36)
pad36.Profile = sketch36
pad36.Length = 80
body37 = doc.addObject("PartDesign::Body", "Body036")

sketch37 = doc.addObject("Sketcher::SketchObject", "Sketch036")
body37.addObject(sketch37)
sketch37.AttachmentSupport = (doc.getObject("YZ_Plane036"), [""])
sketch37.MapMode = "FlatFace"
sketch37.addGeometry(Part.Circle(V(174.4, 3.836277, 0), V(0, 0, 1), 2.5), False)
sketch37.addConstraint(Sketcher.Constraint("Diameter", 0, 5.0))
sketch37.addConstraint(Sketcher.Constraint("DistanceX", -1, 1, 0, 3, 174.4))
sketch37.addConstraint(Sketcher.Constraint("DistanceY", -1, 1, 0, 3, 3.836277))
pad37 = doc.addObject("PartDesign::Pad", "Pad036")
body37.addObject(pad37)
pad37.Profile = sketch37
pad37.Length = 80
body38 = doc.addObject("PartDesign::Body", "Body037")

sketch38 = doc.addObject("Sketcher::SketchObject", "Sketch037")
body38.addObject(sketch38)
sketch38.AttachmentSupport = (doc.getObject("YZ_Plane037"), [""])
sketch38.MapMode = "FlatFace"
sketch38.addGeometry(Part.Circle(V(185.1, 3.836277, 0), V(0, 0, 1), 2.5), False)
sketch38.addConstraint(Sketcher.Constraint("Diameter", 0, 5.0))
sketch38.addConstraint(Sketcher.Constraint("DistanceX", -1, 1, 0, 3, 185.1))
sketch38.addConstraint(Sketcher.Constraint("DistanceY", -1, 1, 0, 3, 3.836277))
pad38 = doc.addObject("PartDesign::Pad", "Pad037")
body38.addObject(pad38)
pad38.Profile = sketch38
pad38.Length = 80
body39 = doc.addObject("PartDesign::Body", "Body038")

sketch39 = doc.addObject("Sketcher::SketchObject", "Sketch038")
body39.addObject(sketch39)
sketch39.AttachmentSupport = (doc.getObject("YZ_Plane038"), [""])
sketch39.MapMode = "FlatFace"
sketch39.addGeometry(Part.Circle(V(195.8, 3.836277, 0), V(0, 0, 1), 2.5), False)
sketch39.addConstraint(Sketcher.Constraint("Diameter", 0, 5.0))
sketch39.addConstraint(Sketcher.Constraint("DistanceX", -1, 1, 0, 3, 195.8))
sketch39.addConstraint(Sketcher.Constraint("DistanceY", -1, 1, 0, 3, 3.836277))
pad39 = doc.addObject("PartDesign::Pad", "Pad038")
body39.addObject(pad39)
pad39.Profile = sketch39
pad39.Length = 80
body40 = doc.addObject("PartDesign::Body", "Body039")

sketch40 = doc.addObject("Sketcher::SketchObject", "Sketch039")
body40.addObject(sketch40)
sketch40.AttachmentSupport = (doc.getObject("YZ_Plane039"), [""])
sketch40.MapMode = "FlatFace"
sketch40.addGeometry(Part.Circle(V(206.5, 3.836277, 0), V(0, 0, 1), 2.5), False)
sketch40.addConstraint(Sketcher.Constraint("Diameter", 0, 5.0))
sketch40.addConstraint(Sketcher.Constraint("DistanceX", -1, 1, 0, 3, 206.5))
sketch40.addConstraint(Sketcher.Constraint("DistanceY", -1, 1, 0, 3, 3.836277))
pad40 = doc.addObject("PartDesign::Pad", "Pad039")
body40.addObject(pad40)
pad40.Profile = sketch40
pad40.Length = 80
body41 = doc.addObject("PartDesign::Body", "Body040")

sketch41 = doc.addObject("Sketcher::SketchObject", "Sketch040")
body41.addObject(sketch41)
sketch41.AttachmentSupport = (doc.getObject("YZ_Plane040"), [""])
sketch41.MapMode = "FlatFace"
sketch41.addGeometry(Part.LineSegment(V(-215, 10.836277, 0), V(-215, -2.163723, 0)), False)
sketch41.addGeometry(Part.LineSegment(V(-215, -2.163723, 0), V(215, -2.163723, 0)), False)
sketch41.addGeometry(Part.LineSegment(V(215, -2.163723, 0), V(215, 10.836277, 0)), False)
sketch41.addGeometry(Part.LineSegment(V(215, 10.836277, 0), V(-215, 10.836277, 0)), False)
sketch41.addConstraint(Sketcher.Constraint("Coincident", 0, 2, 1, 1))
sketch41.addConstraint(Sketcher.Constraint("Coincident", 1, 2, 2, 1))
sketch41.addConstraint(Sketcher.Constraint("Coincident", 2, 2, 3, 1))
sketch41.addConstraint(Sketcher.Constraint("Coincident", 3, 2, 0, 1))
sketch41.addConstraint(Sketcher.Constraint("Vertical", 0))
sketch41.addConstraint(Sketcher.Constraint("Horizontal", 1))
sketch41.addConstraint(Sketcher.Constraint("Vertical", 2))
sketch41.addConstraint(Sketcher.Constraint("Horizontal", 3))
sketch41.addConstraint(Sketcher.Constraint("DistanceX", 1, 1, 1, 2, 430.0))
sketch41.addConstraint(Sketcher.Constraint("DistanceY", 0, 2, 0, 1, 13.0))
sketch41.addConstraint(Sketcher.Constraint("DistanceX", 0, 2, -1, 1, 215.0))
sketch41.addConstraint(Sketcher.Constraint("DistanceY", 0, 2, -1, 1, 2.163723))
pad41 = doc.addObject("PartDesign::Pad", "Pad040")
body41.addObject(pad41)
pad41.Profile = sketch41
pad41.Length = 5
pad41.Reversed = True
doc.recompute()

chamfer = doc.addObject("PartDesign::Chamfer", "Chamfer")
body41.addObject(chamfer)
chamfer.Base = (pad41, edges_at(pad41, [(0, 0, 10.836)]))
chamfer.Size = 2
doc.recompute()

fillet = doc.addObject("PartDesign::Fillet", "Fillet")
body41.addObject(fillet)
fillet.Base = (chamfer, edges_at(chamfer, [(-2, 0, 10.836)]))
fillet.Radius = 5

doc.recompute()
